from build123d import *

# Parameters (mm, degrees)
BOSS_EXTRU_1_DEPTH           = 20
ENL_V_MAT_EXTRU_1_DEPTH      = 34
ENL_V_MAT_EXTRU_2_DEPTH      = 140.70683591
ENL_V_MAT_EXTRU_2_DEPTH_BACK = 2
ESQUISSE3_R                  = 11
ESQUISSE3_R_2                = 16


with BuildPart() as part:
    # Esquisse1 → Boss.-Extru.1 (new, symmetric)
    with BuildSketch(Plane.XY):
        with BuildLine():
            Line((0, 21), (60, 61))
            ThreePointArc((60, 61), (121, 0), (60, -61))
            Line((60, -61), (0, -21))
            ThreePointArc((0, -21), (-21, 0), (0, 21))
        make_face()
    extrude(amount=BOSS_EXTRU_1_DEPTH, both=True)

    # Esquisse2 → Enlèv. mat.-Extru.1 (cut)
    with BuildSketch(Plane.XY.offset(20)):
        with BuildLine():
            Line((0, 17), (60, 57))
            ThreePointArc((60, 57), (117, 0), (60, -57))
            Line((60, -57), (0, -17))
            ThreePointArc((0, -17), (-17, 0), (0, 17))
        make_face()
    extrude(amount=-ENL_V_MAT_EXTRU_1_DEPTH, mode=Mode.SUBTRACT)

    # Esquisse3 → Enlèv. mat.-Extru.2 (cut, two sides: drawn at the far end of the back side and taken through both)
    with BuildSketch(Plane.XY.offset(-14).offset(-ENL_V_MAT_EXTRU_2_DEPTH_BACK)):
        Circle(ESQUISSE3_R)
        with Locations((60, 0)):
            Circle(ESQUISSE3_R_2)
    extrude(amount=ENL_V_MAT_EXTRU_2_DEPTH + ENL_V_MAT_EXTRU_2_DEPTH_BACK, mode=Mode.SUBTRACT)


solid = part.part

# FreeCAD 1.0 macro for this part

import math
import FreeCAD as App
import Part
import Sketcher

V = App.Vector
Q = App.Units.Quantity

doc = App.newDocument("Part")
body = doc.addObject("PartDesign::Body", "Body")

# Sketch on XY plane
sketch1 = body.newObject("Sketcher::SketchObject", "Sketch")
sketch1.AttachmentSupport = (doc.getObject("XY_Plane"), [""])
sketch1.MapMode = "FlatFace"
sketch1.addGeometry([
    Part.LineSegment(V(60, 61, 0), V(0, 21, 0)),
    Part.ArcOfCircle(Part.Circle(V(0, 0, 0), V(0, 0, 1), 21), math.radians(90), math.radians(270)),
    Part.LineSegment(V(0, -21, 0), V(60, -61, 0)),
    Part.ArcOfCircle(Part.Circle(V(60, 0, 0), V(0, 0, 1), 61), math.radians(-90), math.radians(90)),
], False)
sketch1.addConstraint([
    Sketcher.Constraint("Coincident", 0, 2, 1, 1),
    Sketcher.Constraint("Coincident", 1, 2, 2, 1),
    Sketcher.Constraint("Coincident", 2, 2, 3, 1),
    Sketcher.Constraint("Coincident", 3, 2, 0, 1),
    Sketcher.Constraint("Coincident", 1, 3, -1, 1),
    Sketcher.Constraint("Symmetric", 2, 2, 3, 2, -1),
    Sketcher.Constraint("PointOnObject", 0, 2, -2),
    Sketcher.Constraint("PointOnObject", 1, 2, -2),
    Sketcher.Constraint("Vertical", 3, 3, 2, 2),
    Sketcher.Constraint("Radius", 1, Q("21 mm")),
    Sketcher.Constraint("Radius", 3, Q("61 mm")),
    Sketcher.Constraint("DistanceX", -1, 1, 3, 3, Q("60 mm")),
])
pad1 = body.newObject("PartDesign::Pad", "Pad")
pad1.Profile = sketch1
pad1.Length = 40
pad1.Midplane = True

# Sketch on XY plane
sketch2 = body.newObject("Sketcher::SketchObject", "Sketch001")
sketch2.AttachmentSupport = (doc.getObject("XY_Plane"), [""])
sketch2.MapMode = "FlatFace"
sketch2.AttachmentOffset = App.Placement(V(0, 0, 20), App.Rotation())
sketch2.addGeometry([
    Part.LineSegment(V(60, 57, 0), V(0, 17, 0)),
    Part.ArcOfCircle(Part.Circle(V(0, 0, 0), V(0, 0, 1), 17), math.radians(90), math.radians(270)),
    Part.LineSegment(V(0, -17, 0), V(60, -57, 0)),
    Part.ArcOfCircle(Part.Circle(V(60, 0, 0), V(0, 0, 1), 57), math.radians(-90), math.radians(90)),
], False)
sketch2.addConstraint([
    Sketcher.Constraint("Coincident", 0, 2, 1, 1),
    Sketcher.Constraint("Coincident", 1, 2, 2, 1),
    Sketcher.Constraint("Coincident", 2, 2, 3, 1),
    Sketcher.Constraint("Coincident", 3, 2, 0, 1),
    Sketcher.Constraint("Coincident", 1, 3, -1, 1),
    Sketcher.Constraint("Symmetric", 2, 2, 3, 2, -1),
    Sketcher.Constraint("PointOnObject", 0, 2, -2),
    Sketcher.Constraint("PointOnObject", 1, 2, -2),
    Sketcher.Constraint("Vertical", 3, 3, 2, 2),
    Sketcher.Constraint("Radius", 1, Q("17 mm")),
    Sketcher.Constraint("Radius", 3, Q("57 mm")),
    Sketcher.Constraint("DistanceX", -1, 1, 3, 3, Q("60 mm")),
])
pocket1 = body.newObject("PartDesign::Pocket", "Pocket")
pocket1.Profile = sketch2
pocket1.Length = 34

# Sketch on XY plane
sketch3 = body.newObject("Sketcher::SketchObject", "Sketch002")
sketch3.AttachmentSupport = (doc.getObject("XY_Plane"), [""])
sketch3.MapMode = "FlatFace"
sketch3.AttachmentOffset = App.Placement(V(0, 0, -14), App.Rotation())
sketch3.addGeometry([
    Part.Circle(V(0, 0, 0), V(0, 0, 1), 11),
    Part.Circle(V(60, 0, 0), V(0, 0, 1), 16),
], False)
sketch3.addConstraint([
    Sketcher.Constraint("Coincident", 0, 3, -1, 1),
    Sketcher.Constraint("PointOnObject", 1, 3, -1),
    Sketcher.Constraint("Diameter", 0, Q("22 mm")),
    Sketcher.Constraint("Diameter", 1, Q("32 mm")),
    Sketcher.Constraint("DistanceX", -1, 1, 1, 3, Q("60 mm")),
])
pocket2 = body.newObject("PartDesign::Pocket", "Pocket001")
pocket2.Profile = sketch3
pocket2.Type = "TwoLengths"
pocket2.Length = 140.706836
pocket2.Length2 = 2
pocket2.Reversed = True

doc.recompute()
